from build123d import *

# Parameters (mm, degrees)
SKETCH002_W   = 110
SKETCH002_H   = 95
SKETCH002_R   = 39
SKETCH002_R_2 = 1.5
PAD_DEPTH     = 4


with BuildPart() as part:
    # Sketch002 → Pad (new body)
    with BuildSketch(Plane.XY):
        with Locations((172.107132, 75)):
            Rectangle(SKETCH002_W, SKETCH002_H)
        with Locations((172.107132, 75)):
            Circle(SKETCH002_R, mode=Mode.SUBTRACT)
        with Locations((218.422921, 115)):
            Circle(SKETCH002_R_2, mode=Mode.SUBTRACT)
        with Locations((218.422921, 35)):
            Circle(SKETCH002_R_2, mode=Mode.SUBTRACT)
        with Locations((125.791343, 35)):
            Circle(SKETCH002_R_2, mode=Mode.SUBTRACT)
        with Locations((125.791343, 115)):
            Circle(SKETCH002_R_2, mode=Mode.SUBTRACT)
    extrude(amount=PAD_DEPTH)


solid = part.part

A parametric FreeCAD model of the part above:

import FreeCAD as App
import Part
import Sketcher

V = App.Vector


def add_polygon(sketch, points):
    """Adds a closed chain of lines whose ends are joined by coincident constraints."""
    first, n = sketch.GeometryCount, len(points)
    for a, b in zip(points, points[1:] + points[:1]):
        sketch.addGeometry(Part.LineSegment(App.Vector(*a, 0), App.Vector(*b, 0)), False)
    for i in range(n):
        sketch.addConstraint(Sketcher.Constraint("Coincident", first + i, 2, first + (i + 1) % n, 1))

doc = App.newDocument("Part")
body = doc.addObject("PartDesign::Body", "Body")

# Sketch on XY plane
sketch1 = body.newObject("Sketcher::SketchObject", "Sketch")
sketch1.AttachmentSupport = (doc.getObject("XY_Plane"), [""])
sketch1.MapMode = "FlatFace"
add_polygon(sketch1, [(117.1, 122.5), (117.1, 27.5), (227.1, 27.5), (227.1, 122.5)])  # lines 0-3
sketch1.addGeometry(Part.Circle(V(125.8, 35, 0), V(0, 0, 1), 1.5), False)  # 4
sketch1.addGeometry(Part.Circle(V(218.4, 35, 0), V(0, 0, 1), 1.5), False)  # 5
sketch1.addGeometry(Part.Circle(V(125.8, 115, 0), V(0, 0, 1), 1.5), False)  # 6
sketch1.addGeometry(Part.Circle(V(172.1, 75, 0), V(0, 0, 1), 39), False)  # 7
sketch1.addGeometry(Part.Circle(V(218.4, 115, 0), V(0, 0, 1), 1.5), False)  # 8
sketch1.addConstraint(Sketcher.Constraint("Vertical", 0))
sketch1.addConstraint(Sketcher.Constraint("Horizontal", 1))
sketch1.addConstraint(Sketcher.Constraint("Vertical", 2))
sketch1.addConstraint(Sketcher.Constraint("Horizontal", 3))
sketch1.addConstraint(Sketcher.Constraint("Equal", 4, 5))
sketch1.addConstraint(Sketcher.Constraint("Equal", 5, 6))
sketch1.addConstraint(Sketcher.Constraint("Equal", 6, 8))
sketch1.addConstraint(Sketcher.Constraint("Horizontal", 4, 3, 5, 3))
sketch1.addConstraint(Sketcher.Constraint("Horizontal", 6, 3, 8, 3))
sketch1.addConstraint(Sketcher.Constraint("Vertical", 4, 3, 6, 3))
sketch1.addConstraint(Sketcher.Constraint("Vertical", 5, 3, 8, 3))
sketch1.addConstraint(Sketcher.Constraint("Diameter", 4, 3.0))
sketch1.addConstraint(Sketcher.Constraint("Diameter", 7, 78.0))
sketch1.addConstraint(Sketcher.Constraint("DistanceX", 1, 1, 1, 2, 110.0))
sketch1.addConstraint(Sketcher.Constraint("DistanceY", 0, 2, 0, 1, 95.0))
sketch1.addConstraint(Sketcher.Constraint("DistanceY", -1, 1, 4, 3, 35.0))
sketch1.addConstraint(Sketcher.Constraint("DistanceY", -1, 1, 6, 3, 115.0))
sketch1.addConstraint(Sketcher.Constraint("DistanceY", -1, 1, 7, 3, 75.0))
sketch1.addConstraint(Sketcher.Constraint("DistanceX", 0, 2, 7, 3, 55.0))
sketch1.addConstraint(Sketcher.Constraint("DistanceY", -1, 1, 0, 2, 27.5))
sketch1.addConstraint(Sketcher.Constraint("DistanceX", -1, 1, 5, 3, 218.422921))
sketch1.addConstraint(Sketcher.Constraint("DistanceX", -1, 1, 7, 3, 172.107132))
sketch1.addConstraint(Sketcher.Constraint("DistanceX", 4, 3, 5, 3, 92.631578))
pad1 = body.newObject("PartDesign::Pad", "Pad")
pad1.Profile = sketch1
pad1.Length = 4

doc.recompute()
